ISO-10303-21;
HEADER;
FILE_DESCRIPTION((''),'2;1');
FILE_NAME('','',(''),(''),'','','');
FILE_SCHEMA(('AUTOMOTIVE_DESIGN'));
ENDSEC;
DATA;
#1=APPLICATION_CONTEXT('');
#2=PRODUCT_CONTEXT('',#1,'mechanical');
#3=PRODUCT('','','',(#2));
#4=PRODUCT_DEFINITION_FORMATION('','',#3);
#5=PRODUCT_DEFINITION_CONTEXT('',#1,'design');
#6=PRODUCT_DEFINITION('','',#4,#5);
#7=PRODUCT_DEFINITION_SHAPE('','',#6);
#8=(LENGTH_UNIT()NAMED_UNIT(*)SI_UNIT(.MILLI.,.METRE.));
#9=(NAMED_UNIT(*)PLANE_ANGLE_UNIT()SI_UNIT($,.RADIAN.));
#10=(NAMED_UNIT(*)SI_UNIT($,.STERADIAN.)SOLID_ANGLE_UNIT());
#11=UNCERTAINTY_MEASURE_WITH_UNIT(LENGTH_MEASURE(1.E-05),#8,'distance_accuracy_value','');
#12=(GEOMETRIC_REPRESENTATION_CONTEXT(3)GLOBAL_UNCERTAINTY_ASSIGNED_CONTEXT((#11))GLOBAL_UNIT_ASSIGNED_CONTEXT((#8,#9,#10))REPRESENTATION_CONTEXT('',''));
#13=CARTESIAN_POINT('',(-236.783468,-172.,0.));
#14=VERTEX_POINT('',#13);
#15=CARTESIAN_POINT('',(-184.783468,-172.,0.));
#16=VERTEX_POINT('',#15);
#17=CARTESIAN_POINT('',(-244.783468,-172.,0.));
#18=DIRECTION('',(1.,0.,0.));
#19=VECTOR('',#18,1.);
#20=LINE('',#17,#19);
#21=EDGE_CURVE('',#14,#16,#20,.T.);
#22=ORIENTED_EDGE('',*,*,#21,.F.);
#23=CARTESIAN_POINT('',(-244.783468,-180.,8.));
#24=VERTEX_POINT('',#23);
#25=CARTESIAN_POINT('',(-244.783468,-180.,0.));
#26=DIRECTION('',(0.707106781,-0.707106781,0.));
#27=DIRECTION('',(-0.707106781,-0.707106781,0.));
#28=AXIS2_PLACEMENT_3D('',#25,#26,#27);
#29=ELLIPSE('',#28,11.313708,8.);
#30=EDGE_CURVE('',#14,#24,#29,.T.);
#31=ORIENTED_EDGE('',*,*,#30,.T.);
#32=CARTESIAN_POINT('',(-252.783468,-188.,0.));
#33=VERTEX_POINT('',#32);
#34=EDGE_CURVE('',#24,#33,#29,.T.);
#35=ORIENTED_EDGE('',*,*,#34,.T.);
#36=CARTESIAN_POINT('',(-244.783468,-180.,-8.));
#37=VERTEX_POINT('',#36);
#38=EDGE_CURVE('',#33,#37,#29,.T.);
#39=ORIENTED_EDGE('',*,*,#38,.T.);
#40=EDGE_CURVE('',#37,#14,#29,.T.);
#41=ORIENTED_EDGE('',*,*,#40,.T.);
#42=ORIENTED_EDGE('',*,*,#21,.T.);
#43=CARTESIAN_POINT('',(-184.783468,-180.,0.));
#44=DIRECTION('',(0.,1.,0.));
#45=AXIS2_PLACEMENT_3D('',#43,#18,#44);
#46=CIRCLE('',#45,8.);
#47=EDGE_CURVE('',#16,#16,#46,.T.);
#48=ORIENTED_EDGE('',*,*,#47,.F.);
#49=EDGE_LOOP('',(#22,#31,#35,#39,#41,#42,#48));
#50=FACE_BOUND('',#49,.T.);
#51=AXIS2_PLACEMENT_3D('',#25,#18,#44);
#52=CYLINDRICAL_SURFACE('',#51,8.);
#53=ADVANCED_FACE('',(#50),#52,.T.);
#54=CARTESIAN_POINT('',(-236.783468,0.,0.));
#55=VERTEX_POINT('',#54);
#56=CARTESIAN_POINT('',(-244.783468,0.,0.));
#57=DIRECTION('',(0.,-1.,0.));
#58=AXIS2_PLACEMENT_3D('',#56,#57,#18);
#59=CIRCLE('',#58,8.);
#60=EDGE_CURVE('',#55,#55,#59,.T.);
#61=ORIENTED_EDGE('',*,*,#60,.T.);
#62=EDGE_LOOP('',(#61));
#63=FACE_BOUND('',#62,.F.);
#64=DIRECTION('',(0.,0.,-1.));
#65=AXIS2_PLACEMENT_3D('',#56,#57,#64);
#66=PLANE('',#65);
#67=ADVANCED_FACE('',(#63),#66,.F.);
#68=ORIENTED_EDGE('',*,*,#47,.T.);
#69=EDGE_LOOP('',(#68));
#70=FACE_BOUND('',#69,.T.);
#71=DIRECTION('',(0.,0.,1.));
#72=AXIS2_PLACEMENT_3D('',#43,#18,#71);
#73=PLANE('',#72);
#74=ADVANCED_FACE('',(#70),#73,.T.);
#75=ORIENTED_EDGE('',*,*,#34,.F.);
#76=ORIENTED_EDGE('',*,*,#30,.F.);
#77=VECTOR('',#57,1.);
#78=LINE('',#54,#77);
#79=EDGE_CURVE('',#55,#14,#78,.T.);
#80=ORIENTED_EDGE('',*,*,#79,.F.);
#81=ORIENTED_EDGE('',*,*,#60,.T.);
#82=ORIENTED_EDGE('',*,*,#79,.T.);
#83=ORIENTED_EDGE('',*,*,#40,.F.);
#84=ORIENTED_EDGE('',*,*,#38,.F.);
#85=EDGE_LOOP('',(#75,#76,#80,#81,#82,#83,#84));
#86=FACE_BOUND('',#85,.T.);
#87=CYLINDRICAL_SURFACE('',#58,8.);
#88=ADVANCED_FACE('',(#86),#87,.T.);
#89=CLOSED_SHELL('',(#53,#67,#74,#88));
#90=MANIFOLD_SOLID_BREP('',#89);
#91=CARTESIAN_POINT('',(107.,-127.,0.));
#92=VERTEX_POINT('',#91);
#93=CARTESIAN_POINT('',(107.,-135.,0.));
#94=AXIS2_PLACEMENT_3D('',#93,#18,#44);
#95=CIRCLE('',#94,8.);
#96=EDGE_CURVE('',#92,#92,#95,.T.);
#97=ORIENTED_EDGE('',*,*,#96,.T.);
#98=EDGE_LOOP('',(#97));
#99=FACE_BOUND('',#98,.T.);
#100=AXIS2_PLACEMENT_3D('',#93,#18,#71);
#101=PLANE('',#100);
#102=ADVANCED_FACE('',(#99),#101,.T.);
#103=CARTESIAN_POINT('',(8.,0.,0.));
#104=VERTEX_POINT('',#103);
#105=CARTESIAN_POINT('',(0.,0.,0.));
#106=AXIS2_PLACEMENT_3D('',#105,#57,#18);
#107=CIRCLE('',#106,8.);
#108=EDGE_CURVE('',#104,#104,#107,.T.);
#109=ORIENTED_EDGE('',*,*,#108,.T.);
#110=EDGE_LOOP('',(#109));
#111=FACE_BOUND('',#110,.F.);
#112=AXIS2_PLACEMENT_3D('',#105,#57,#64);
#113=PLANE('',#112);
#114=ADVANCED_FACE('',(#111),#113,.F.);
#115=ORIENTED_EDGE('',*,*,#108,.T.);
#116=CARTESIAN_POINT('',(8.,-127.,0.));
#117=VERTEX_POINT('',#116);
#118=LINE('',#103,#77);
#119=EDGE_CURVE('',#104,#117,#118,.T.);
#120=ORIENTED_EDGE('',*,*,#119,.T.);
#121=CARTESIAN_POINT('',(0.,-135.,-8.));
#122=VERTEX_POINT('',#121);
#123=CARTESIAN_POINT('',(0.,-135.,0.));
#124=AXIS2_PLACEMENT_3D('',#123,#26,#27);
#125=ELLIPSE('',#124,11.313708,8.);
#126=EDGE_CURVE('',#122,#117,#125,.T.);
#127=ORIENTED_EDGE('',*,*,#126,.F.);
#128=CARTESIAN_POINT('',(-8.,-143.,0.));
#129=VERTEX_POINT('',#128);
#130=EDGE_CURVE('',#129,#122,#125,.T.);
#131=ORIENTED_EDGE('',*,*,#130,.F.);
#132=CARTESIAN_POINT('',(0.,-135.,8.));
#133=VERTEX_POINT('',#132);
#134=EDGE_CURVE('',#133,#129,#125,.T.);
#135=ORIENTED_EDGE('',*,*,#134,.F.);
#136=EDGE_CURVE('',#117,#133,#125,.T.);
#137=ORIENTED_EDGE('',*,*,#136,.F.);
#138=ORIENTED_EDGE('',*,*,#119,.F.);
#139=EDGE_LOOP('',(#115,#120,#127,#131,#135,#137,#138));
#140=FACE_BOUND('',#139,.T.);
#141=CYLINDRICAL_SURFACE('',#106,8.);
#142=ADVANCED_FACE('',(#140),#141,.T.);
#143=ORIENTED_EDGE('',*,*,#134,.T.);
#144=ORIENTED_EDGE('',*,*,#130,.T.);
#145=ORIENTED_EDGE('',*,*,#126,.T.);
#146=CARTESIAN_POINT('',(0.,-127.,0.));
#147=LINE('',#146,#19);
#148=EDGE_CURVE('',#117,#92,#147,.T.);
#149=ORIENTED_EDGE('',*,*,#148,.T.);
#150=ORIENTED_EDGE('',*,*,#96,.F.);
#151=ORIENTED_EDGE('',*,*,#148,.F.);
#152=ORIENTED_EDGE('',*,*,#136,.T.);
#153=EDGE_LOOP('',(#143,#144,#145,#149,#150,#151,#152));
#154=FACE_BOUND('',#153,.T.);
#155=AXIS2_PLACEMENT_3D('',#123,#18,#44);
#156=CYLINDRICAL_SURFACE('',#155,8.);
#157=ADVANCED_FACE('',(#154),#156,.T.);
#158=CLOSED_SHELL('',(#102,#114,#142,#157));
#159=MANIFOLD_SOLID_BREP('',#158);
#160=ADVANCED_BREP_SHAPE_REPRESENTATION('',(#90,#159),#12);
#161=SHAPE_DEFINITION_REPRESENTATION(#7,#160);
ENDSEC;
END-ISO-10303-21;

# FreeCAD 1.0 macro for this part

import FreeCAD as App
import Part
import Sketcher
from FreeCAD import Vector
Q = App.Units.Quantity

doc = App.newDocument("Part")
body = doc.addObject("PartDesign::Body", "Body")

# Sketch on XZ plane
sketch1 = body.newObject("Sketcher::SketchObject", "Sketch")
sketch1.AttachmentSupport = (doc.getObject("XZ_Plane"), [""])
sketch1.MapMode = "FlatFace"
sketch1.addGeometry(Part.Circle(Vector(0, 0, 0), Vector(0, 0, 1), 8), False)
sketch1.addConstraint([
    Sketcher.Constraint("Coincident", 0, 3, -1, 1),
    Sketcher.Constraint("Diameter", 0, Q("16 mm")),
])

# Sketch on XY plane
sketch2 = body.newObject("Sketcher::SketchObject", "Sketch001")
sketch2.AttachmentSupport = (doc.getObject("XY_Plane"), [""])
sketch2.MapMode = "FlatFace"
sketch2.addGeometry([
    Part.LineSegment(Vector(0, 0, 0), Vector(0, -135, 0)),
    Part.LineSegment(Vector(0, -135, 0), Vector(107, -135, 0)),
], False)
sketch2.addConstraint([
    Sketcher.Constraint("Coincident", 0, 2, 1, 1),
    Sketcher.Constraint("Vertical", 0),
    Sketcher.Constraint("Horizontal", 1),
    Sketcher.Constraint("Coincident", 0, 1, -1, 1),
    Sketcher.Constraint("DistanceX", 1, 1, 1, 2, Q("107 mm")),
    Sketcher.Constraint("DistanceY", 0, 2, 0, 1, Q("135 mm")),
])
doc.recompute()

additivepipe = body.newObject("PartDesign::AdditivePipe", "AdditivePipe")
additivepipe.Profile = sketch1
additivepipe.Spine = (sketch2, ["Edge1", "Edge2"])
additivepipe.Transition = "Right corner"
body2 = doc.addObject("PartDesign::Body", "Body001")

# Sketch on XZ plane
sketch3 = body2.newObject("Sketcher::SketchObject", "Sketch002")
sketch3.AttachmentSupport = (doc.getObject("XZ_Plane001"), [""])
sketch3.MapMode = "FlatFace"
sketch3.addGeometry(Part.Circle(Vector(-245, 0, 0), Vector(0, 0, 1), 8), False)
sketch3.addConstraint([
    Sketcher.Constraint("PointOnObject", 0, 3, -1),
    Sketcher.Constraint("Diameter", 0, Q("16 mm")),
    Sketcher.Constraint("DistanceX", 0, 3, -1, 1, Q("244.783468 mm")),
])

# Sketch on XY plane
sketch4 = body2.newObject("Sketcher::SketchObject", "Sketch003")
sketch4.AttachmentSupport = (doc.getObject("XY_Plane001"), [""])
sketch4.MapMode = "FlatFace"
sketch4.addGeometry([
    Part.LineSegment(Vector(-245, 0, 0), Vector(-245, -180, 0)),
    Part.LineSegment(Vector(-245, -180, 0), Vector(-185, -180, 0)),
], False)
sketch4.addConstraint([
    Sketcher.Constraint("Coincident", 0, 2, 1, 1),
    Sketcher.Constraint("Vertical", 0),
    Sketcher.Constraint("Horizontal", 1),
    Sketcher.Constraint("PointOnObject", 0, 1, -1),
    Sketcher.Constraint("DistanceX", 1, 1, 1, 2, Q("60 mm")),
    Sketcher.Constraint("DistanceY", 0, 2, 0, 1, Q("180 mm")),
    Sketcher.Constraint("DistanceX", 0, 1, -1, 1, Q("244.783468 mm")),
])
doc.recompute()

additivepipe2 = body2.newObject("PartDesign::AdditivePipe", "AdditivePipe001")
additivepipe2.Profile = sketch3
additivepipe2.Spine = (sketch4, ["Edge1", "Edge2"])
additivepipe2.Transition = "Right corner"

doc.recompute()
